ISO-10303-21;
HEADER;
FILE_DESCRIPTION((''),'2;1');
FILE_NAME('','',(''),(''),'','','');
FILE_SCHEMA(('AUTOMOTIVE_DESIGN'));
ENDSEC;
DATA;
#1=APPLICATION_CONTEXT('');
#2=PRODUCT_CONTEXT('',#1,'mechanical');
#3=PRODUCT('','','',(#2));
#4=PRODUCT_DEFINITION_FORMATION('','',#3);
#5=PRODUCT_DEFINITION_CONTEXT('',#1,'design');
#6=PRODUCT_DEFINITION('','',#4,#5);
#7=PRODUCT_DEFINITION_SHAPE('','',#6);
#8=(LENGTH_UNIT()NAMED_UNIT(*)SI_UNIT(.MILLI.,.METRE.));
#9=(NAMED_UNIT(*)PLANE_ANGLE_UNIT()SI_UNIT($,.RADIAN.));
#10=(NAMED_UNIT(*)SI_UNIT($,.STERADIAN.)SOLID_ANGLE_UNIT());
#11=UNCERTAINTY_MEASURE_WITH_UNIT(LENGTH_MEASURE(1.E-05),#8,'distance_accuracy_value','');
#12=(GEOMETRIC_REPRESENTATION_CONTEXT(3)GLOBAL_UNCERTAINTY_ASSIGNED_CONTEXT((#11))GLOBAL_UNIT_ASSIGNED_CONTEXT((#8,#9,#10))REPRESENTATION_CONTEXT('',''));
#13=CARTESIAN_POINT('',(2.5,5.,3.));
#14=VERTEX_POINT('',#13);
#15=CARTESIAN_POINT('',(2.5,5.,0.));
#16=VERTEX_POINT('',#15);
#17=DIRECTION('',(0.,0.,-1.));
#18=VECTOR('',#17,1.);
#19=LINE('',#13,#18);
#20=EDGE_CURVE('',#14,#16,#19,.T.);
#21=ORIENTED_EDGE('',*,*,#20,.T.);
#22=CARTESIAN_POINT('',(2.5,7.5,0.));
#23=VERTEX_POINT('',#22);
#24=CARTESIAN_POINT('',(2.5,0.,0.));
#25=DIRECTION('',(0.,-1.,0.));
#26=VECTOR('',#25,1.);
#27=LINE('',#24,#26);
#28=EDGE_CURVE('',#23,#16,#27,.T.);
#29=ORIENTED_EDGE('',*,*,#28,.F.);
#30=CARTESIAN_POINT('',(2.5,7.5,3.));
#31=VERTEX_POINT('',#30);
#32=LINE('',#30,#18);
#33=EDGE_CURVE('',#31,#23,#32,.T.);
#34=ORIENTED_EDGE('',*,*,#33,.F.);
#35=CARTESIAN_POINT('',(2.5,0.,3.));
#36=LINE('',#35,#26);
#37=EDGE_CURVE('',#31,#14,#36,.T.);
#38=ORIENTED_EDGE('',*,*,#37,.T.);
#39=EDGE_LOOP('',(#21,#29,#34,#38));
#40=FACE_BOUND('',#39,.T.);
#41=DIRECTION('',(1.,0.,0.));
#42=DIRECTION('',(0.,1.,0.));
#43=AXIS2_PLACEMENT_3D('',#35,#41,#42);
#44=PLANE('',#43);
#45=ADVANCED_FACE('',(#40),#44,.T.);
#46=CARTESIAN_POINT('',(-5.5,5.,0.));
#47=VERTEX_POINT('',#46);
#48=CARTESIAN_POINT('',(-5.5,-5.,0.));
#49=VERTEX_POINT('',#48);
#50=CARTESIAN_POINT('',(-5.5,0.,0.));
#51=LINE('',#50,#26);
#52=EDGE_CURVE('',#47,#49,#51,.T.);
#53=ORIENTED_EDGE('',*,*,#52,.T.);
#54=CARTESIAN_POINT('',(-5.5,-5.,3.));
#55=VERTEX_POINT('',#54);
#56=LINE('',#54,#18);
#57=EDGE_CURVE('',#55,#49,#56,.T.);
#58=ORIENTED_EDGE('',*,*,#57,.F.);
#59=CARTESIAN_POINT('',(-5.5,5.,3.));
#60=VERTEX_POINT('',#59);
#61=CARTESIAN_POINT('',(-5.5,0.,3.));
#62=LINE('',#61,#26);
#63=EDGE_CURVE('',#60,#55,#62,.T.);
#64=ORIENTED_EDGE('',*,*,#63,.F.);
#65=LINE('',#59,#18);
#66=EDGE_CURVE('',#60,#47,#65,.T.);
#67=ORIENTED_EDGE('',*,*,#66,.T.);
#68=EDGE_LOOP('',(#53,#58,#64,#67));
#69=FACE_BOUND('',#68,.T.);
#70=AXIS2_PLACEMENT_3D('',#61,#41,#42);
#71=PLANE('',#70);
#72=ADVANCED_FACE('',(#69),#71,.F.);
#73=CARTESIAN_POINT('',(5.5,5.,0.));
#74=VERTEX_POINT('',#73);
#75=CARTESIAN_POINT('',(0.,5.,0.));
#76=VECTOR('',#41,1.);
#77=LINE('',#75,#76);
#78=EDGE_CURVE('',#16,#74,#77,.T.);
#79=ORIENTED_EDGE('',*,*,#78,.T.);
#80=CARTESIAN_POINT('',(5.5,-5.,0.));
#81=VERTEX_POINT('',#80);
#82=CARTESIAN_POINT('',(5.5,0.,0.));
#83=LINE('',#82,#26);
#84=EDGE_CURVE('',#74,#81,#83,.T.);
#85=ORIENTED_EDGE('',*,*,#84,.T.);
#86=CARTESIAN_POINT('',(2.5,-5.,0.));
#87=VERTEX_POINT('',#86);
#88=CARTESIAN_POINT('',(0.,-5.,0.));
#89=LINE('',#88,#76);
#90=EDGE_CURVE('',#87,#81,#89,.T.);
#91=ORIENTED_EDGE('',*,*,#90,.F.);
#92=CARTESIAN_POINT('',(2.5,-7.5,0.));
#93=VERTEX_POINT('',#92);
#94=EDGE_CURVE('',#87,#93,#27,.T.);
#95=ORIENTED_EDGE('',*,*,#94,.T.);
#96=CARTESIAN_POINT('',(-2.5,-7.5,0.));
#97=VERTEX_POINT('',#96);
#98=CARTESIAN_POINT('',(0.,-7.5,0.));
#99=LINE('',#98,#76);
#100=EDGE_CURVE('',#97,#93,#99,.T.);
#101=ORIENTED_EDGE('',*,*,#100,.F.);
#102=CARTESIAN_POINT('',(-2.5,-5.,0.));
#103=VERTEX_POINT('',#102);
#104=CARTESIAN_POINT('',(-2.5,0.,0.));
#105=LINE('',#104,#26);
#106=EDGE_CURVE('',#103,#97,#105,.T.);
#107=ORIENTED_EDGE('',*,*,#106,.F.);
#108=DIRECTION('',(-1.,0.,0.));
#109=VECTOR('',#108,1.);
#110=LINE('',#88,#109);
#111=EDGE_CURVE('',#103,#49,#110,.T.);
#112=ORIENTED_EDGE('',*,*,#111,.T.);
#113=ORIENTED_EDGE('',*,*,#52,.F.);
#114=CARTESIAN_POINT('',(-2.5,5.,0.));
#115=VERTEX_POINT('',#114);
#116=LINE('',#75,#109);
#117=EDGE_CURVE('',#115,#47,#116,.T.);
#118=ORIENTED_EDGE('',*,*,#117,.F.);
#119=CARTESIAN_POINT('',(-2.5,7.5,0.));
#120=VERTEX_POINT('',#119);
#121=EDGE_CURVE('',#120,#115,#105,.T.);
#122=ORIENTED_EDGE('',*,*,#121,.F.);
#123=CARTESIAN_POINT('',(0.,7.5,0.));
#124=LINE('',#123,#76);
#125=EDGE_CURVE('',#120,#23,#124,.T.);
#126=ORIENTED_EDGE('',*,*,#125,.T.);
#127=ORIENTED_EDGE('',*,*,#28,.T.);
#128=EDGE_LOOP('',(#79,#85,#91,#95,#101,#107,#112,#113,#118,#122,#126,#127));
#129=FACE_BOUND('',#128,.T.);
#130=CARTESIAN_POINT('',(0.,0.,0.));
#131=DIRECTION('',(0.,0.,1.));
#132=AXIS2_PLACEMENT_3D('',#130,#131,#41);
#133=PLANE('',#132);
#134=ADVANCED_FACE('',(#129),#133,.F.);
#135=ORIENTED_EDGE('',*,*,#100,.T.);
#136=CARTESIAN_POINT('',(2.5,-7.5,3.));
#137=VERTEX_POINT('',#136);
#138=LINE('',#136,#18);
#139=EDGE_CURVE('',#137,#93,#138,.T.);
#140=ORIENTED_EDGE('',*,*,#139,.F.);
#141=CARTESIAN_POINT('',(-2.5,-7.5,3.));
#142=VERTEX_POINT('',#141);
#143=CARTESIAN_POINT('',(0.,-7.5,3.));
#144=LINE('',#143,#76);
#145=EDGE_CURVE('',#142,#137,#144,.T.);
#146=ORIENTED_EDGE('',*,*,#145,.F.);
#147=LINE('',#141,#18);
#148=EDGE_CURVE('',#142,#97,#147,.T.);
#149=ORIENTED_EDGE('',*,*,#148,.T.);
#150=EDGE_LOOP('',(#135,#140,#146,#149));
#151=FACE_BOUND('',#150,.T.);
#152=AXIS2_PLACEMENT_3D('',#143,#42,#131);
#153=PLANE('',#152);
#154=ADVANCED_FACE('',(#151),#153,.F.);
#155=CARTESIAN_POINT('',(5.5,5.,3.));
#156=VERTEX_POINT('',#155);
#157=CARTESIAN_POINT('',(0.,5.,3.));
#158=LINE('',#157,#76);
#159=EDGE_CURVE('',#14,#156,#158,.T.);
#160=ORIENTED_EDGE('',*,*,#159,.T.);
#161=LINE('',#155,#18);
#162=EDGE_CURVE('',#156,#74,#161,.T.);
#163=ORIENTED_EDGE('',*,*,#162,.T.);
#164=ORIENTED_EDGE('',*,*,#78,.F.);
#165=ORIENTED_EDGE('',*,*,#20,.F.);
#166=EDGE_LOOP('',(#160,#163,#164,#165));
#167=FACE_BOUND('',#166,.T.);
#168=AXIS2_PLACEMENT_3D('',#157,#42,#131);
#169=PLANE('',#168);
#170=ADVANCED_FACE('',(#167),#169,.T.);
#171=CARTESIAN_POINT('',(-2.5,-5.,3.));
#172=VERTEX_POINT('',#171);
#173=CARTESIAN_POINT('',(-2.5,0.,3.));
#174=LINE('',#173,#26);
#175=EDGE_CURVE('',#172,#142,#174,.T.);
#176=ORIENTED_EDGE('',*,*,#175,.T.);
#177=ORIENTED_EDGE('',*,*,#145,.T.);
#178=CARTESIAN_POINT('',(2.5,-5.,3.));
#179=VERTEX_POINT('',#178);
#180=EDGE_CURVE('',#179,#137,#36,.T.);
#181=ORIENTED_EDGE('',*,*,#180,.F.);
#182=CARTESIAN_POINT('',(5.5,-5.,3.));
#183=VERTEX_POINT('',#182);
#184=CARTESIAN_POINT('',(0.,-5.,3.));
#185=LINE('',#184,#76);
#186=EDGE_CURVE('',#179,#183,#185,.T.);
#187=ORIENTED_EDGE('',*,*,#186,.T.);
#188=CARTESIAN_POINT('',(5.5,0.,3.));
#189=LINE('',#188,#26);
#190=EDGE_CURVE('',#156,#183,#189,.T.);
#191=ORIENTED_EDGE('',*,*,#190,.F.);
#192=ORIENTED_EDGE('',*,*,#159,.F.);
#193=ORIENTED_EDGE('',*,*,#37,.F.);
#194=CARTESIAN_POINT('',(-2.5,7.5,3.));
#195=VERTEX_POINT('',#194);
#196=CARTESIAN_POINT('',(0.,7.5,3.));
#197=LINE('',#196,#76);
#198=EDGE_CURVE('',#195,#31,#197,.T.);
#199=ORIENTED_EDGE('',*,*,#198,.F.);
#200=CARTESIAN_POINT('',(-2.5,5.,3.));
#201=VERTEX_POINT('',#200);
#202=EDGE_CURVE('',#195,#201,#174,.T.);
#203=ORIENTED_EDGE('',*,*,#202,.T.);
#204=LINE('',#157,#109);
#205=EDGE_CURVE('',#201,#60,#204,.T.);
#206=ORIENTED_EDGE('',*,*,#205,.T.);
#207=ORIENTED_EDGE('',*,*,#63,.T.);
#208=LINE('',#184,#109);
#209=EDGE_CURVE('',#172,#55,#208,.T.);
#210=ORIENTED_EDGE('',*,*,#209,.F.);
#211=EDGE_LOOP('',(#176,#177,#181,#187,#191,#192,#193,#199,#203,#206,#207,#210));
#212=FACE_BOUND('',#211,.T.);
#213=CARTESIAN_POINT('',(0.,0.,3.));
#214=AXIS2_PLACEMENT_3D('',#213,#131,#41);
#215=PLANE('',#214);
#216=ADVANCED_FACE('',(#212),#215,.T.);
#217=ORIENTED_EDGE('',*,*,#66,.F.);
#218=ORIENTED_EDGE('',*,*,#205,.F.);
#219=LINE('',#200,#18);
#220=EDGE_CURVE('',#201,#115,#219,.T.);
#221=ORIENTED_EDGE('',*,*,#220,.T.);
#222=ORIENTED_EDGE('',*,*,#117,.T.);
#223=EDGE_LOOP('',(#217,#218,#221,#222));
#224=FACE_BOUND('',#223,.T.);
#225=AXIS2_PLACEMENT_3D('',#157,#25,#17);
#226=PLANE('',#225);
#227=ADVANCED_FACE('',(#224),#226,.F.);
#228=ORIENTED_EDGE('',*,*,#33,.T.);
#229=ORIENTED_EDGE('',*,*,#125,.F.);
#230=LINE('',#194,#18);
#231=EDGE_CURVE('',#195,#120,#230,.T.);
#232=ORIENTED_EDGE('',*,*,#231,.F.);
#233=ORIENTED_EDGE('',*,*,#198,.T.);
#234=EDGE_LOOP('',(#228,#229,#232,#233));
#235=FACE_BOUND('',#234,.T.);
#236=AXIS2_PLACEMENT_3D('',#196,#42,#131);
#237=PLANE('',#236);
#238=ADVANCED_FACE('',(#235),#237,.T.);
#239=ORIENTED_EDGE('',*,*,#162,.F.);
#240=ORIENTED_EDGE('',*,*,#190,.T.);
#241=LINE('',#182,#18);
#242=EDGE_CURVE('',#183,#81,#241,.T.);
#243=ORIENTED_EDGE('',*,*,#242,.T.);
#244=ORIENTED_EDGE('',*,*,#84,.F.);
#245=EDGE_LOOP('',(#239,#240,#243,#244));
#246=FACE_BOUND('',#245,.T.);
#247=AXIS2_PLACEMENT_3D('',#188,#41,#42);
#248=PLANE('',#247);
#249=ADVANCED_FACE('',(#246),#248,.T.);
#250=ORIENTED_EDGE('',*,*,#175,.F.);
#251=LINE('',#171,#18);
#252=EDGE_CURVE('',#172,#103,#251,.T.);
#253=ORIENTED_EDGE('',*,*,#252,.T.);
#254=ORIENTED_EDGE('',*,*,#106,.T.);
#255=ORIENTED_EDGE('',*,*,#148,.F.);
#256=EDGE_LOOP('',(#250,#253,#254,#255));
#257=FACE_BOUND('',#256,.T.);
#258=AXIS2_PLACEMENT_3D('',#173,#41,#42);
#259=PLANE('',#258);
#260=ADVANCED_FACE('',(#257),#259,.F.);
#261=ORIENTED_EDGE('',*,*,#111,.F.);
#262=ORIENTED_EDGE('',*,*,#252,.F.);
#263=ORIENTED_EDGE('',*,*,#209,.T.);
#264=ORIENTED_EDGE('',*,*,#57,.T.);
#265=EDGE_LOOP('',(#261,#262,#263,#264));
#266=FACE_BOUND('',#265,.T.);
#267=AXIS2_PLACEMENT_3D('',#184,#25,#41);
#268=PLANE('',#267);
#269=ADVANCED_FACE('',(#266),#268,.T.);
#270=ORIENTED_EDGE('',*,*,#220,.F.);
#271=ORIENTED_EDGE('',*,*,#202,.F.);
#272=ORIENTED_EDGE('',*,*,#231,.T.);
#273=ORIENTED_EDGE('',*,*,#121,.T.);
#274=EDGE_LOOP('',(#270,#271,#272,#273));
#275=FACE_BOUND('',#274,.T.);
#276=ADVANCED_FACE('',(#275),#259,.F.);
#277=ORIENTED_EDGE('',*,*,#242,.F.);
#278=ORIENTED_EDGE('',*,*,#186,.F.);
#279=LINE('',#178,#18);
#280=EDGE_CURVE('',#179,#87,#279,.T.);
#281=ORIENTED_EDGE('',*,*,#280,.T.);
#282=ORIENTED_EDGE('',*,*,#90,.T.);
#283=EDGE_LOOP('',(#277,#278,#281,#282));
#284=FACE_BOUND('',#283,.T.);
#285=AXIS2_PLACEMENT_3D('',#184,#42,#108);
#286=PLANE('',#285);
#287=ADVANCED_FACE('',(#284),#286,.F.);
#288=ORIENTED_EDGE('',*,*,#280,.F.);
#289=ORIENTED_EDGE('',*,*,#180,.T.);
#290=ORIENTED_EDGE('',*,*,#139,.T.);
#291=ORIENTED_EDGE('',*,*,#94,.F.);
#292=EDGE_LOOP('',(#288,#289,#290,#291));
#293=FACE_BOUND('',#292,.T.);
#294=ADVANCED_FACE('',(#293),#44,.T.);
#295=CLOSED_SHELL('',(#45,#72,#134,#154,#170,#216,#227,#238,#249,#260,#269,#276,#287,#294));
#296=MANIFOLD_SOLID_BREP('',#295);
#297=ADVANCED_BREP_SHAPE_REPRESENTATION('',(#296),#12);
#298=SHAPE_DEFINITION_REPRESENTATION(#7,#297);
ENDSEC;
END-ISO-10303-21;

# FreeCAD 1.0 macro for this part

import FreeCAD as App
import Part
import Sketcher
from FreeCAD import Vector


def add_polygon(sketch, points):
    """Adds a closed chain of lines whose ends are joined by coincident constraints."""
    first, n = sketch.GeometryCount, len(points)
    for a, b in zip(points, points[1:] + points[:1]):
        sketch.addGeometry(Part.LineSegment(App.Vector(*a, 0), App.Vector(*b, 0)), False)
    for i in range(n):
        sketch.addConstraint(Sketcher.Constraint("Coincident", first + i, 2, first + (i + 1) % n, 1))

doc = App.newDocument("Part")
body = doc.addObject("PartDesign::Body", "Body")

# Sketch on XY plane
sketch1 = doc.addObject("Sketcher::SketchObject", "Sketch")
body.addObject(sketch1)
sketch1.AttachmentSupport = (doc.XY_Plane, [""])
sketch1.MapMode = "FlatFace"
add_polygon(sketch1, [(-5.5, 5), (-5.5, -5), (-2.5, -5), (-2.5, -7.5), (2.5, -7.5), (2.5, -5), (5.5, -5), (5.5, 5), (2.5, 5), (2.5, 7.5), (-2.5, 7.5), (-2.5, 5)])  # lines 0-11
sketch1.addConstraint(Sketcher.Constraint("Vertical", 0))
sketch1.addConstraint(Sketcher.Constraint("Horizontal", 1))
sketch1.addConstraint(Sketcher.Constraint("Vertical", 2))
sketch1.addConstraint(Sketcher.Constraint("Horizontal", 3))
sketch1.addConstraint(Sketcher.Constraint("Vertical", 4))
sketch1.addConstraint(Sketcher.Constraint("Horizontal", 5))
sketch1.addConstraint(Sketcher.Constraint("Vertical", 6))
sketch1.addConstraint(Sketcher.Constraint("Horizontal", 7))
sketch1.addConstraint(Sketcher.Constraint("Vertical", 8))
sketch1.addConstraint(Sketcher.Constraint("Horizontal", 9))
sketch1.addConstraint(Sketcher.Constraint("Vertical", 10))
sketch1.addConstraint(Sketcher.Constraint("Horizontal", 11))
sketch1.addConstraint(Sketcher.Constraint("Symmetric", 0, 2, 6, 2, -1, 1))
sketch1.addConstraint(Sketcher.Constraint("Symmetric", 2, 2, 8, 2, -1, 1))
sketch1.addConstraint(Sketcher.Constraint("Symmetric", 4, 2, 10, 2, -1, 1))
sketch1.addConstraint(Sketcher.Constraint("Symmetric", 1, 2, 4, 2, -2))
sketch1.addConstraint(Sketcher.Constraint("DistanceX", 1, 1, 1, 2, 3.0))
sketch1.addConstraint(Sketcher.Constraint("DistanceX", 3, 1, 3, 2, 5.0))
sketch1.addConstraint(Sketcher.Constraint("DistanceY", 0, 2, 0, 1, 10.0))
sketch1.addConstraint(Sketcher.Constraint("DistanceY", 2, 2, 2, 1, 2.5))
pad1 = doc.addObject("PartDesign::Pad", "Pad")
body.addObject(pad1)
pad1.Profile = sketch1
pad1.Length = 3

doc.recompute()
